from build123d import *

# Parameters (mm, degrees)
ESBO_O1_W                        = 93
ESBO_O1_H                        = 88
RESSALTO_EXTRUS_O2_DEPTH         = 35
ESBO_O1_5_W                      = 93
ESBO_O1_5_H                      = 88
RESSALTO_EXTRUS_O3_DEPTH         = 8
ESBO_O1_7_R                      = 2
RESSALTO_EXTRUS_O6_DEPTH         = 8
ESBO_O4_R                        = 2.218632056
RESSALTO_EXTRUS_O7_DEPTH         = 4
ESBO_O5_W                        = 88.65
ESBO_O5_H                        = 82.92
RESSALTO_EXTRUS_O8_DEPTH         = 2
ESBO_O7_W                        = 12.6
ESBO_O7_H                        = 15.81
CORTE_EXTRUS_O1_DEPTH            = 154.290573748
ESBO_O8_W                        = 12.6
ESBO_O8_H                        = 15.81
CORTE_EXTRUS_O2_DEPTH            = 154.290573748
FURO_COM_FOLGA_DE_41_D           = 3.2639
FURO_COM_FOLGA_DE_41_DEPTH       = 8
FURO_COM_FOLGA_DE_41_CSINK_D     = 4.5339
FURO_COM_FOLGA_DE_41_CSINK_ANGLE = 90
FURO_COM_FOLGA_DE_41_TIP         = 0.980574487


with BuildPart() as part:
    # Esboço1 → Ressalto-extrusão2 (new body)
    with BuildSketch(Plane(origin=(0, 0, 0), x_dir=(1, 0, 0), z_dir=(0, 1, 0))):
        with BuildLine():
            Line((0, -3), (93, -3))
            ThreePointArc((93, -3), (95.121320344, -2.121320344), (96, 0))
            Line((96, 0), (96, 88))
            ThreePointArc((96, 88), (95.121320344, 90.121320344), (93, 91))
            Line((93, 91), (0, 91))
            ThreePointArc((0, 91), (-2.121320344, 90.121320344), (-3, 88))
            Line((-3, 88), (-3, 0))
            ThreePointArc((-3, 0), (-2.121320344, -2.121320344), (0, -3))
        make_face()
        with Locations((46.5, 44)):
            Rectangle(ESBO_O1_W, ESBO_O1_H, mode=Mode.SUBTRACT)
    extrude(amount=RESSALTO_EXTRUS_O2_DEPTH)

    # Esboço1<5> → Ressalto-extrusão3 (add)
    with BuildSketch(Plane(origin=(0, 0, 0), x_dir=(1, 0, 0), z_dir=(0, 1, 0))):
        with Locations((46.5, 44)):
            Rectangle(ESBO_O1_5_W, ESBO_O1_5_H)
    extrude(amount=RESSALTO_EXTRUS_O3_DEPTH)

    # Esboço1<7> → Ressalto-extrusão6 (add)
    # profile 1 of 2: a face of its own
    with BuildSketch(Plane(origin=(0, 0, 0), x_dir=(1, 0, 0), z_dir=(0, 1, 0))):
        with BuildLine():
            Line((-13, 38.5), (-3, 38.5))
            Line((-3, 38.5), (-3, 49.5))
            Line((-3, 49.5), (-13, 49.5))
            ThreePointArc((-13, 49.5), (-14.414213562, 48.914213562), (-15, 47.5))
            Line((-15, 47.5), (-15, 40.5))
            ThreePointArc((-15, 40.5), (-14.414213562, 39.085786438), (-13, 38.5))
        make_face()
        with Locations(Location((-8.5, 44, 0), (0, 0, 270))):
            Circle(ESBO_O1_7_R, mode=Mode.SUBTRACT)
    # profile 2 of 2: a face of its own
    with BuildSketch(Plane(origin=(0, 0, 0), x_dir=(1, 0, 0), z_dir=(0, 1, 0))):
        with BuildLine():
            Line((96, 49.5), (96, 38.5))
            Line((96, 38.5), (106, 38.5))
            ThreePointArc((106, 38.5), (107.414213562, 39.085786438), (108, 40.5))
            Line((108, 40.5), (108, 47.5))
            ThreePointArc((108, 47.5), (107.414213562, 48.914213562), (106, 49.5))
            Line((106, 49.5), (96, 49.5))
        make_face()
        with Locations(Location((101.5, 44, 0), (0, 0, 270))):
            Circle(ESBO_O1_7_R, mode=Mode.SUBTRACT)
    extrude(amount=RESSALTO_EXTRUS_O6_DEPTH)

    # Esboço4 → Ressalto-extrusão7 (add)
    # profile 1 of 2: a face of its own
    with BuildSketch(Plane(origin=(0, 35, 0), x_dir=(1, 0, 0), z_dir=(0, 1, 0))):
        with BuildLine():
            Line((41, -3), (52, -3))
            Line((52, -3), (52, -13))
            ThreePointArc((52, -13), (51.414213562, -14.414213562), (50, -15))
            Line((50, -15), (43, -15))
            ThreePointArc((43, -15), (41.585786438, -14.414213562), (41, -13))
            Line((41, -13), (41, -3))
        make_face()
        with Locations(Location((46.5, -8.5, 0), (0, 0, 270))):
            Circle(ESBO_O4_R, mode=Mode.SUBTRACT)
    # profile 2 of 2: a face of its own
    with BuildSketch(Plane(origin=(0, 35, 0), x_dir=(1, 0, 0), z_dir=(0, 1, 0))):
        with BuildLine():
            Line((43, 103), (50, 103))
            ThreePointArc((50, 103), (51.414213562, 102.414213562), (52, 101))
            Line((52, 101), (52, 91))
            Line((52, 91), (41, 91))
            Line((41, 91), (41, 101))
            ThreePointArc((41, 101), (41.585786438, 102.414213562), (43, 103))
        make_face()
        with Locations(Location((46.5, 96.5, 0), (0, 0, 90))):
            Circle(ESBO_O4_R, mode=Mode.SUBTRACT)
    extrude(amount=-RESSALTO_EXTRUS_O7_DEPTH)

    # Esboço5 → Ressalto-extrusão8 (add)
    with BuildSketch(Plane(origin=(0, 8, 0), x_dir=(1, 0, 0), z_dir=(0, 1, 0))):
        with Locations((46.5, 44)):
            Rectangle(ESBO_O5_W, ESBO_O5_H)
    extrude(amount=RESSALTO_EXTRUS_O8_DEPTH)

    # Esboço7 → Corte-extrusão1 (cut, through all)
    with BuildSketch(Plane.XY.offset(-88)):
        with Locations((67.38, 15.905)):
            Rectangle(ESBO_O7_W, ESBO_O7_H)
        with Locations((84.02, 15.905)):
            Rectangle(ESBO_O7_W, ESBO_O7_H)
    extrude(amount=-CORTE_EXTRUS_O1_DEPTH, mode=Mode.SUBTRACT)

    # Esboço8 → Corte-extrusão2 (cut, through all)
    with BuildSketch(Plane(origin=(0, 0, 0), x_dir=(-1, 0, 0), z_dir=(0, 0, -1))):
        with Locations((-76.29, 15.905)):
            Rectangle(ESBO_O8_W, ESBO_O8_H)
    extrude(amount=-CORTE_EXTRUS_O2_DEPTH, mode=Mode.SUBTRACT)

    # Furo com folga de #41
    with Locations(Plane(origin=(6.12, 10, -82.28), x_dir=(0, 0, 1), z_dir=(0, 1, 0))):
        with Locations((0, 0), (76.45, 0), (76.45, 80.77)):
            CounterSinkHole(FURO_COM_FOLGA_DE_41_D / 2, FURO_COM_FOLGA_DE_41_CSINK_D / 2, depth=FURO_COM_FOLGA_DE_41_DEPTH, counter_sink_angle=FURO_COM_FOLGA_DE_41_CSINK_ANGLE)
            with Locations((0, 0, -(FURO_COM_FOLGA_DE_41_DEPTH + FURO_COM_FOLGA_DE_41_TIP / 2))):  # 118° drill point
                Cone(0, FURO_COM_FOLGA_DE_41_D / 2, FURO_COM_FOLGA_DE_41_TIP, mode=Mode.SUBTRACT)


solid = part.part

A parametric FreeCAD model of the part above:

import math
import FreeCAD as App
import Part
import Sketcher
Q = App.Units.Quantity


def add_polygon(sketch, points):
    """Adds a closed chain of lines whose ends are joined by coincident constraints."""
    first, n = sketch.GeometryCount, len(points)
    for a, b in zip(points, points[1:] + points[:1]):
        sketch.addGeometry(Part.LineSegment(App.Vector(*a, 0), App.Vector(*b, 0)), False)
    for i in range(n):
        sketch.addConstraint(Sketcher.Constraint("Coincident", first + i, 2, first + (i + 1) % n, 1))

doc = App.newDocument("Part")
params = doc.addObject("Spreadsheet::Sheet", "Params")
for row, (alias, value) in enumerate([
    ("sketch1_radius", "3 mm"),
    ("sketch1_width", "93 mm"),
    ("sketch1_height", "88 mm"),
    ("pad1_length", "35 mm"),
    ("sketch2_width", "93 mm"),
    ("sketch2_height", "88 mm"),
    ("pad2_length", "8 mm"),
    ("sketch3_diameter", "4 mm"),
    ("sketch3_width", "10 mm"),
    ("sketch3_height", "11 mm"),
    ("pad3_length", "8 mm"),
    ("sketch4_radius", "2 mm"),
    ("sketch4_width", "11 mm"),
    ("sketch4_height", "10 mm"),
    ("pad4_length", "4 mm"),
    ("sketch5_width", "88.65 mm"),
    ("sketch5_height", "82.92 mm"),
    ("pad5_length", "2 mm"),
    ("sketch6_width", "12.6 mm"),
    ("sketch6_height", "15.81 mm"),
    ("sketch7_width", "12.6 mm"),
    ("sketch7_height", "15.81 mm"),
    ("hole_diameter", "3.2639 mm"),
    ("hole_depth", "8 mm"),
    ("hole_csink_diameter", "4.5339 mm"),
], start=1):
    params.set(f"A{row}", alias)
    params.set(f"B{row}", "=" + value)
    params.setAlias(f"B{row}", alias)

body = doc.addObject("PartDesign::Body", "Body")

sketch1 = body.newObject("Sketcher::SketchObject", "Sketch")
sketch1.AttachmentSupport = (doc.getObject("XZ_Plane"), [""])
sketch1.MapMode = "FlatFace"
sketch1.addGeometry(Part.LineSegment(App.Vector(0, 3, 0), App.Vector(93, 3, 0)), False)
sketch1.addGeometry(Part.ArcOfCircle(Part.Circle(App.Vector(93, 0, 0), App.Vector(0, 0, 1), 3), math.radians(0), math.radians(90)), False)
sketch1.addGeometry(Part.LineSegment(App.Vector(96, 0, 0), App.Vector(96, -88, 0)), False)
sketch1.addGeometry(Part.ArcOfCircle(Part.Circle(App.Vector(93, -88, 0), App.Vector(0, 0, 1), 3), math.radians(-90), math.radians(0)), False)
sketch1.addGeometry(Part.LineSegment(App.Vector(93, -91, 0), App.Vector(0, -91, 0)), False)
sketch1.addGeometry(Part.ArcOfCircle(Part.Circle(App.Vector(0, -88, 0), App.Vector(0, 0, 1), 3), math.radians(180), math.radians(270)), False)
sketch1.addGeometry(Part.LineSegment(App.Vector(-3, -88, 0), App.Vector(-3, 0, 0)), False)
sketch1.addGeometry(Part.ArcOfCircle(Part.Circle(App.Vector(0, 0, 0), App.Vector(0, 0, 1), 3), math.radians(90), math.radians(180)), False)
add_polygon(sketch1, [(93, 0), (0, 0), (0, -88), (93, -88)])
sketch1.addConstraint(Sketcher.Constraint("Tangent", 0, 2, 1, 2))
sketch1.addConstraint(Sketcher.Constraint("Tangent", 1, 1, 2, 1))
sketch1.addConstraint(Sketcher.Constraint("Tangent", 2, 2, 3, 2))
sketch1.addConstraint(Sketcher.Constraint("Tangent", 3, 1, 4, 1))
sketch1.addConstraint(Sketcher.Constraint("Tangent", 4, 2, 5, 2))
sketch1.addConstraint(Sketcher.Constraint("Tangent", 5, 1, 6, 1))
sketch1.addConstraint(Sketcher.Constraint("Tangent", 6, 2, 7, 2))
sketch1.addConstraint(Sketcher.Constraint("Tangent", 7, 1, 0, 1))
sketch1.addConstraint(Sketcher.Constraint("Horizontal", 0))
sketch1.addConstraint(Sketcher.Constraint("Vertical", 2))
sketch1.addConstraint(Sketcher.Constraint("Horizontal", 4))
sketch1.addConstraint(Sketcher.Constraint("Vertical", 6))
sketch1.addConstraint(Sketcher.Constraint("Horizontal", 8))
sketch1.addConstraint(Sketcher.Constraint("Vertical", 9))
sketch1.addConstraint(Sketcher.Constraint("Horizontal", 10))
sketch1.addConstraint(Sketcher.Constraint("Vertical", 11))
sketch1.addConstraint(Sketcher.Constraint("Coincident", 7, 3, -1, 1))
sketch1.addConstraint(Sketcher.Constraint("Coincident", 8, 2, -1, 1))
sketch1.addConstraint(Sketcher.Constraint("Coincident", 9, 2, 5, 3))
sketch1.addConstraint(Sketcher.Constraint("Coincident", 10, 2, 3, 3))
sketch1.addConstraint(Sketcher.Constraint("Equal", 1, 3))
sketch1.addConstraint(Sketcher.Constraint("Radius", 1, Q("3 mm")))
sketch1.addConstraint(Sketcher.Constraint("DistanceX", 0, 1, 0, 2, Q("93 mm")))
sketch1.addConstraint(Sketcher.Constraint("DistanceY", 2, 2, 2, 1, Q("88 mm")))
sketch1.setExpression("Constraints[25]", "Params.sketch1_radius")
sketch1.setExpression("Constraints[26]", "Params.sketch1_width")
sketch1.setExpression("Constraints[27]", "Params.sketch1_height")
pad1 = body.newObject("PartDesign::Pad", "Pad")
pad1.Profile = sketch1
pad1.setExpression("Length", "Params.pad1_length")
pad1.Reversed = True

sketch2 = body.newObject("Sketcher::SketchObject", "Sketch001")
sketch2.AttachmentSupport = (doc.getObject("XZ_Plane"), [""])
sketch2.MapMode = "FlatFace"
add_polygon(sketch2, [(0, -88), (0, 0), (93, 0), (93, -88)])
sketch2.addConstraint(Sketcher.Constraint("Vertical", 0))
sketch2.addConstraint(Sketcher.Constraint("Horizontal", 1))
sketch2.addConstraint(Sketcher.Constraint("Vertical", 2))
sketch2.addConstraint(Sketcher.Constraint("Horizontal", 3))
sketch2.addConstraint(Sketcher.Constraint("Coincident", 0, 2, -1, 1))
sketch2.addConstraint(Sketcher.Constraint("DistanceX", 1, 1, 1, 2, Q("93 mm")))
sketch2.addConstraint(Sketcher.Constraint("DistanceY", 0, 1, 0, 2, Q("88 mm")))
sketch2.setExpression("Constraints[9]", "Params.sketch2_width")
sketch2.setExpression("Constraints[10]", "Params.sketch2_height")
pad2 = body.newObject("PartDesign::Pad", "Pad001")
pad2.Profile = sketch2
pad2.setExpression("Length", "Params.pad2_length")
pad2.Reversed = True

sketch3 = body.newObject("Sketcher::SketchObject", "Sketch002")
sketch3.AttachmentSupport = (doc.getObject("XZ_Plane"), [""])
sketch3.MapMode = "FlatFace"
sketch3.addGeometry(Part.LineSegment(App.Vector(-13, -38.5, 0), App.Vector(-3, -38.5, 0)), False)
sketch3.addGeometry(Part.LineSegment(App.Vector(-3, -38.5, 0), App.Vector(-3, -49.5, 0)), False)
sketch3.addGeometry(Part.LineSegment(App.Vector(-3, -49.5, 0), App.Vector(-13, -49.5, 0)), False)
sketch3.addGeometry(Part.ArcOfCircle(Part.Circle(App.Vector(-13, -47.5, 0), App.Vector(0, 0, 1), 2), math.radians(-180), math.radians(-90)), False)
sketch3.addGeometry(Part.LineSegment(App.Vector(-15, -47.5, 0), App.Vector(-15, -40.5, 0)), False)
sketch3.addGeometry(Part.ArcOfCircle(Part.Circle(App.Vector(-13, -40.5, 0), App.Vector(0, 0, 1), 2), math.radians(90), math.radians(180)), False)
sketch3.addGeometry(Part.Circle(App.Vector(-8.5, -44, 0), App.Vector(0, 0, 1), 2), False)
sketch3.addGeometry(Part.LineSegment(App.Vector(96, -49.5, 0), App.Vector(96, -38.5, 0)), False)
sketch3.addGeometry(Part.LineSegment(App.Vector(96, -38.5, 0), App.Vector(106, -38.5, 0)), False)
sketch3.addGeometry(Part.ArcOfCircle(Part.Circle(App.Vector(106, -40.5, 0), App.Vector(0, 0, 1), 2), math.radians(0), math.radians(90)), False)
sketch3.addGeometry(Part.LineSegment(App.Vector(108, -40.5, 0), App.Vector(108, -47.5, 0)), False)
sketch3.addGeometry(Part.ArcOfCircle(Part.Circle(App.Vector(106, -47.5, 0), App.Vector(0, 0, 1), 2), math.radians(-90), math.radians(0)), False)
sketch3.addGeometry(Part.LineSegment(App.Vector(106, -49.5, 0), App.Vector(96, -49.5, 0)), False)
sketch3.addGeometry(Part.Circle(App.Vector(101.5, -44, 0), App.Vector(0, 0, 1), 2), False)
sketch3.addConstraint(Sketcher.Constraint("Coincident", 0, 2, 1, 1))
sketch3.addConstraint(Sketcher.Constraint("Coincident", 1, 2, 2, 1))
sketch3.addConstraint(Sketcher.Constraint("Tangent", 2, 2, 3, 2))
sketch3.addConstraint(Sketcher.Constraint("Tangent", 3, 1, 4, 1))
sketch3.addConstraint(Sketcher.Constraint("Tangent", 4, 2, 5, 2))
sketch3.addConstraint(Sketcher.Constraint("Tangent", 5, 1, 0, 1))
sketch3.addConstraint(Sketcher.Constraint("Coincident", 7, 2, 8, 1))
sketch3.addConstraint(Sketcher.Constraint("Tangent", 8, 2, 9, 2))
sketch3.addConstraint(Sketcher.Constraint("Tangent", 9, 1, 10, 1))
sketch3.addConstraint(Sketcher.Constraint("Tangent", 10, 2, 11, 2))
sketch3.addConstraint(Sketcher.Constraint("Tangent", 11, 1, 12, 1))
sketch3.addConstraint(Sketcher.Constraint("Coincident", 12, 2, 7, 1))
sketch3.addConstraint(Sketcher.Constraint("Horizontal", 0))
sketch3.addConstraint(Sketcher.Constraint("Vertical", 1))
sketch3.addConstraint(Sketcher.Constraint("Horizontal", 2))
sketch3.addConstraint(Sketcher.Constraint("Vertical", 4))
sketch3.addConstraint(Sketcher.Constraint("Vertical", 7))
sketch3.addConstraint(Sketcher.Constraint("Horizontal", 8))
sketch3.addConstraint(Sketcher.Constraint("Vertical", 10))
sketch3.addConstraint(Sketcher.Constraint("Horizontal", 12))
sketch3.addConstraint(Sketcher.Constraint("Equal", 3, 5))
sketch3.addConstraint(Sketcher.Constraint("Equal", 5, 6))
sketch3.addConstraint(Sketcher.Constraint("Equal", 6, 9))
sketch3.addConstraint(Sketcher.Constraint("Equal", 9, 11))
sketch3.addConstraint(Sketcher.Constraint("Equal", 11, 13))
sketch3.addConstraint(Sketcher.Constraint("Horizontal", 5, 3, 9, 3))
sketch3.addConstraint(Sketcher.Constraint("Horizontal", 3, 3, 11, 3))
sketch3.addConstraint(Sketcher.Constraint("Horizontal", 6, 3, 13, 3))
sketch3.addConstraint(Sketcher.Constraint("Equal", 2, 8))
sketch3.addConstraint(Sketcher.Constraint("Diameter", 6, Q("4 mm")))
sketch3.addConstraint(Sketcher.Constraint("DistanceX", 0, 1, 0, 2, Q("10 mm")))
sketch3.addConstraint(Sketcher.Constraint("DistanceY", 1, 2, 1, 1, Q("11 mm")))
sketch3.addConstraint(Sketcher.Constraint("DistanceX", 3, 3, -1, 1, Q("13 mm")))
sketch3.addConstraint(Sketcher.Constraint("DistanceY", 6, 3, -1, 1, Q("44 mm")))
sketch3.addConstraint(Sketcher.Constraint("DistanceX", -1, 1, 9, 3, Q("106 mm")))
sketch3.addConstraint(Sketcher.Constraint("DistanceX", 6, 3, 13, 3, Q("110 mm")))
sketch3.addConstraint(Sketcher.Constraint("DistanceY", 3, 3, -1, 1, Q("47.5 mm")))
sketch3.addConstraint(Sketcher.Constraint("DistanceX", 6, 3, -1, 1, Q("8.5 mm")))
sketch3.setExpression("Constraints[29]", "Params.sketch3_diameter")
sketch3.setExpression("Constraints[30]", "Params.sketch3_width")
sketch3.setExpression("Constraints[31]", "Params.sketch3_height")
pad3 = body.newObject("PartDesign::Pad", "Pad002")
pad3.Profile = sketch3
pad3.setExpression("Length", "Params.pad3_length")
pad3.Reversed = True

sketch4 = body.newObject("Sketcher::SketchObject", "Sketch003")
sketch4.AttachmentSupport = (doc.getObject("XZ_Plane"), [""])
sketch4.MapMode = "FlatFace"
sketch4.AttachmentOffset = App.Placement(App.Vector(0, 0, -35), App.Rotation())
sketch4.addGeometry(Part.LineSegment(App.Vector(52, 3, 0), App.Vector(41, 3, 0)), False)
sketch4.addGeometry(Part.LineSegment(App.Vector(41, 3, 0), App.Vector(41, 13, 0)), False)
sketch4.addGeometry(Part.ArcOfCircle(Part.Circle(App.Vector(43, 13, 0), App.Vector(0, 0, 1), 2), math.radians(90), math.radians(180)), False)
sketch4.addGeometry(Part.LineSegment(App.Vector(43, 15, 0), App.Vector(50, 15, 0)), False)
sketch4.addGeometry(Part.ArcOfCircle(Part.Circle(App.Vector(50, 13, 0), App.Vector(0, 0, 1), 2), math.radians(0), math.radians(90)), False)
sketch4.addGeometry(Part.LineSegment(App.Vector(52, 13, 0), App.Vector(52, 3, 0)), False)
sketch4.addGeometry(Part.Circle(App.Vector(46.5, 8.5, 0), App.Vector(0, 0, 1), 2.2), False)
sketch4.addGeometry(Part.LineSegment(App.Vector(50, -103, 0), App.Vector(43, -103, 0)), False)
sketch4.addGeometry(Part.ArcOfCircle(Part.Circle(App.Vector(43, -101, 0), App.Vector(0, 0, 1), 2), math.radians(-180), math.radians(-90)), False)
sketch4.addGeometry(Part.LineSegment(App.Vector(41, -101, 0), App.Vector(41, -91, 0)), False)
sketch4.addGeometry(Part.LineSegment(App.Vector(41, -91, 0), App.Vector(52, -91, 0)), False)
sketch4.addGeometry(Part.LineSegment(App.Vector(52, -91, 0), App.Vector(52, -101, 0)), False)
sketch4.addGeometry(Part.ArcOfCircle(Part.Circle(App.Vector(50, -101, 0), App.Vector(0, 0, 1), 2), math.radians(-90), math.radians(0)), False)
sketch4.addGeometry(Part.Circle(App.Vector(46.5, -96.5, 0), App.Vector(0, 0, 1), 2.2), False)
sketch4.addConstraint(Sketcher.Constraint("Coincident", 0, 2, 1, 1))
sketch4.addConstraint(Sketcher.Constraint("Tangent", 1, 2, 2, 2))
sketch4.addConstraint(Sketcher.Constraint("Tangent", 2, 1, 3, 1))
sketch4.addConstraint(Sketcher.Constraint("Tangent", 3, 2, 4, 2))
sketch4.addConstraint(Sketcher.Constraint("Tangent", 4, 1, 5, 1))
sketch4.addConstraint(Sketcher.Constraint("Coincident", 5, 2, 0, 1))
sketch4.addConstraint(Sketcher.Constraint("Tangent", 7, 2, 8, 2))
sketch4.addConstraint(Sketcher.Constraint("Tangent", 8, 1, 9, 1))
sketch4.addConstraint(Sketcher.Constraint("Coincident", 9, 2, 10, 1))
sketch4.addConstraint(Sketcher.Constraint("Coincident", 10, 2, 11, 1))
sketch4.addConstraint(Sketcher.Constraint("Tangent", 11, 2, 12, 2))
sketch4.addConstraint(Sketcher.Constraint("Tangent", 12, 1, 7, 1))
sketch4.addConstraint(Sketcher.Constraint("Horizontal", 0))
sketch4.addConstraint(Sketcher.Constraint("Vertical", 1))
sketch4.addConstraint(Sketcher.Constraint("Horizontal", 3))
sketch4.addConstraint(Sketcher.Constraint("Vertical", 5))
sketch4.addConstraint(Sketcher.Constraint("Horizontal", 7))
sketch4.addConstraint(Sketcher.Constraint("Vertical", 9))
sketch4.addConstraint(Sketcher.Constraint("Horizontal", 10))
sketch4.addConstraint(Sketcher.Constraint("Vertical", 11))
sketch4.addConstraint(Sketcher.Constraint("Equal", 2, 4))
sketch4.addConstraint(Sketcher.Constraint("Equal", 4, 8))
sketch4.addConstraint(Sketcher.Constraint("Equal", 8, 12))
sketch4.addConstraint(Sketcher.Constraint("Equal", 6, 13))
sketch4.addConstraint(Sketcher.Constraint("Vertical", 2, 3, 8, 3))
sketch4.addConstraint(Sketcher.Constraint("Vertical", 4, 3, 12, 3))
sketch4.addConstraint(Sketcher.Constraint("Vertical", 6, 3, 13, 3))
sketch4.addConstraint(Sketcher.Constraint("Equal", 5, 9))
sketch4.addConstraint(Sketcher.Constraint("Radius", 2, Q("2 mm")))
sketch4.addConstraint(Sketcher.Constraint("DistanceX", 0, 2, 0, 1, Q("11 mm")))
sketch4.addConstraint(Sketcher.Constraint("DistanceY", 1, 1, 1, 2, Q("10 mm")))
sketch4.addConstraint(Sketcher.Constraint("DistanceX", -1, 1, 2, 3, Q("43 mm")))
sketch4.addConstraint(Sketcher.Constraint("DistanceY", -1, 1, 2, 3, Q("13 mm")))
sketch4.addConstraint(Sketcher.Constraint("DistanceY", 8, 3, -1, 1, Q("101 mm")))
sketch4.addConstraint(Sketcher.Constraint("DistanceY", 13, 3, 6, 3, Q("105 mm")))
sketch4.addConstraint(Sketcher.Constraint("DistanceX", -1, 1, 6, 3, Q("46.5 mm")))
sketch4.addConstraint(Sketcher.Constraint("DistanceY", -1, 1, 6, 3, Q("8.5 mm")))
sketch4.addConstraint(Sketcher.Constraint("Diameter", 6, Q("4.437264 mm")))
sketch4.setExpression("Constraints[28]", "Params.sketch4_radius")
sketch4.setExpression("Constraints[29]", "Params.sketch4_width")
sketch4.setExpression("Constraints[30]", "Params.sketch4_height")
pad4 = body.newObject("PartDesign::Pad", "Pad003")
pad4.Profile = sketch4
pad4.setExpression("Length", "Params.pad4_length")

sketch5 = body.newObject("Sketcher::SketchObject", "Sketch004")
sketch5.AttachmentSupport = (doc.getObject("XZ_Plane"), [""])
sketch5.MapMode = "FlatFace"
sketch5.AttachmentOffset = App.Placement(App.Vector(0, 0, -8), App.Rotation())
add_polygon(sketch5, [(2, -85), (2, -3), (91, -3), (91, -85)])
sketch5.addConstraint(Sketcher.Constraint("Vertical", 0))
sketch5.addConstraint(Sketcher.Constraint("Horizontal", 1))
sketch5.addConstraint(Sketcher.Constraint("Vertical", 2))
sketch5.addConstraint(Sketcher.Constraint("Horizontal", 3))
sketch5.addConstraint(Sketcher.Constraint("DistanceX", 1, 1, 1, 2, Q("88.65 mm")))
sketch5.addConstraint(Sketcher.Constraint("DistanceY", 0, 1, 0, 2, Q("82.92 mm")))
sketch5.addConstraint(Sketcher.Constraint("DistanceY", 0, 2, -1, 1, Q("2.54 mm")))
sketch5.addConstraint(Sketcher.Constraint("DistanceX", -1, 1, 0, 2, Q("2.175 mm")))
sketch5.setExpression("Constraints[8]", "Params.sketch5_width")
sketch5.setExpression("Constraints[9]", "Params.sketch5_height")
pad5 = body.newObject("PartDesign::Pad", "Pad004")
pad5.Profile = sketch5
pad5.setExpression("Length", "Params.pad5_length")
pad5.Reversed = True

sketch6 = body.newObject("Sketcher::SketchObject", "Sketch005")
sketch6.AttachmentSupport = (doc.getObject("XY_Plane"), [""])
sketch6.MapMode = "FlatFace"
sketch6.AttachmentOffset = App.Placement(App.Vector(0, 0, -88), App.Rotation())
add_polygon(sketch6, [(61, 24), (61, 8), (74, 8), (74, 24)])
add_polygon(sketch6, [(78, 24), (78, 8), (90, 8), (90, 24)])
sketch6.addConstraint(Sketcher.Constraint("Vertical", 0))
sketch6.addConstraint(Sketcher.Constraint("Horizontal", 1))
sketch6.addConstraint(Sketcher.Constraint("Vertical", 2))
sketch6.addConstraint(Sketcher.Constraint("Horizontal", 3))
sketch6.addConstraint(Sketcher.Constraint("Vertical", 4))
sketch6.addConstraint(Sketcher.Constraint("Horizontal", 5))
sketch6.addConstraint(Sketcher.Constraint("Vertical", 6))
sketch6.addConstraint(Sketcher.Constraint("Horizontal", 7))
sketch6.addConstraint(Sketcher.Constraint("Horizontal", 1, 2, 4, 2))
sketch6.addConstraint(Sketcher.Constraint("Horizontal", 3, 2, 6, 2))
sketch6.addConstraint(Sketcher.Constraint("Equal", 3, 5))
sketch6.addConstraint(Sketcher.Constraint("DistanceX", 1, 1, 1, 2, Q("12.6 mm")))
sketch6.addConstraint(Sketcher.Constraint("DistanceY", -1, 1, 0, 2, Q("8 mm")))
sketch6.addConstraint(Sketcher.Constraint("DistanceY", 0, 2, 0, 1, Q("15.81 mm")))
sketch6.addConstraint(Sketcher.Constraint("DistanceX", -1, 1, 0, 2, Q("61.08 mm")))
sketch6.addConstraint(Sketcher.Constraint("DistanceX", -1, 1, 4, 2, Q("77.72 mm")))
sketch6.setExpression("Constraints[19]", "Params.sketch6_width")
sketch6.setExpression("Constraints[21]", "Params.sketch6_height")
pocket1 = body.newObject("PartDesign::Pocket", "Pocket")
pocket1.Profile = sketch6
pocket1.Type = "ThroughAll"

sketch7 = body.newObject("Sketcher::SketchObject", "Sketch006")
sketch7.AttachmentSupport = (doc.getObject("XY_Plane"), [""])
sketch7.MapMode = "FlatFace"
add_polygon(sketch7, [(83, 24), (83, 8), (70, 8), (70, 24)])
sketch7.addConstraint(Sketcher.Constraint("Vertical", 0))
sketch7.addConstraint(Sketcher.Constraint("Horizontal", 1))
sketch7.addConstraint(Sketcher.Constraint("Vertical", 2))
sketch7.addConstraint(Sketcher.Constraint("Horizontal", 3))
sketch7.addConstraint(Sketcher.Constraint("DistanceX", 1, 2, 1, 1, Q("12.6 mm")))
sketch7.addConstraint(Sketcher.Constraint("DistanceY", -1, 1, 0, 2, Q("8 mm")))
sketch7.addConstraint(Sketcher.Constraint("DistanceY", 0, 2, 0, 1, Q("15.81 mm")))
sketch7.addConstraint(Sketcher.Constraint("DistanceX", -1, 1, 0, 2, Q("82.59 mm")))
sketch7.setExpression("Constraints[8]", "Params.sketch7_width")
sketch7.setExpression("Constraints[10]", "Params.sketch7_height")
pocket2 = body.newObject("PartDesign::Pocket", "Pocket001")
pocket2.Profile = sketch7
pocket2.Type = "ThroughAll"
pocket2.Reversed = True

sketch8 = body.newObject("Sketcher::SketchObject", "Sketch007")
sketch8.AttachmentSupport = (doc.getObject("XZ_Plane"), [""])
sketch8.MapMode = "FlatFace"
sketch8.AttachmentOffset = App.Placement(App.Vector(0, 0, -10), App.Rotation())
sketch8.addGeometry(Part.Circle(App.Vector(6.1, -82.3, 0), App.Vector(0, 0, 1), 1.6), False)
sketch8.addGeometry(Part.Circle(App.Vector(6.1, -5.8, 0), App.Vector(0, 0, 1), 1.6), False)
sketch8.addGeometry(Part.Circle(App.Vector(86.9, -5.8, 0), App.Vector(0, 0, 1), 1.6), False)
sketch8.addConstraint(Sketcher.Constraint("Equal", 0, 1))
sketch8.addConstraint(Sketcher.Constraint("Equal", 1, 2))
sketch8.addConstraint(Sketcher.Constraint("Horizontal", 1, 3, 2, 3))
sketch8.addConstraint(Sketcher.Constraint("Vertical", 0, 3, 1, 3))
sketch8.addConstraint(Sketcher.Constraint("Diameter", 0, Q("3.2639 mm")))
sketch8.addConstraint(Sketcher.Constraint("DistanceX", -1, 1, 0, 3, Q("6.12 mm")))
sketch8.addConstraint(Sketcher.Constraint("DistanceY", 0, 3, -1, 1, Q("82.28 mm")))
sketch8.addConstraint(Sketcher.Constraint("DistanceY", 1, 3, -1, 1, Q("5.83 mm")))
sketch8.addConstraint(Sketcher.Constraint("DistanceX", -1, 1, 2, 3, Q("86.89 mm")))
doc.recompute()
hole = body.newObject("PartDesign::Hole", "Hole")
hole.Profile = sketch8
hole.ThreadType = "None"
hole.setExpression("Diameter", "Params.hole_diameter")
hole.DepthType = "Dimension"
hole.setExpression("Depth", "Params.hole_depth")
hole.DrillPoint = "Angled"
hole.DrillPointAngle = 118
hole.HoleCutType = "Countersink"
hole.setExpression("HoleCutDiameter", "Params.hole_csink_diameter")
hole.HoleCutCountersinkAngle = 90
hole.Reversed = True

doc.recompute()
